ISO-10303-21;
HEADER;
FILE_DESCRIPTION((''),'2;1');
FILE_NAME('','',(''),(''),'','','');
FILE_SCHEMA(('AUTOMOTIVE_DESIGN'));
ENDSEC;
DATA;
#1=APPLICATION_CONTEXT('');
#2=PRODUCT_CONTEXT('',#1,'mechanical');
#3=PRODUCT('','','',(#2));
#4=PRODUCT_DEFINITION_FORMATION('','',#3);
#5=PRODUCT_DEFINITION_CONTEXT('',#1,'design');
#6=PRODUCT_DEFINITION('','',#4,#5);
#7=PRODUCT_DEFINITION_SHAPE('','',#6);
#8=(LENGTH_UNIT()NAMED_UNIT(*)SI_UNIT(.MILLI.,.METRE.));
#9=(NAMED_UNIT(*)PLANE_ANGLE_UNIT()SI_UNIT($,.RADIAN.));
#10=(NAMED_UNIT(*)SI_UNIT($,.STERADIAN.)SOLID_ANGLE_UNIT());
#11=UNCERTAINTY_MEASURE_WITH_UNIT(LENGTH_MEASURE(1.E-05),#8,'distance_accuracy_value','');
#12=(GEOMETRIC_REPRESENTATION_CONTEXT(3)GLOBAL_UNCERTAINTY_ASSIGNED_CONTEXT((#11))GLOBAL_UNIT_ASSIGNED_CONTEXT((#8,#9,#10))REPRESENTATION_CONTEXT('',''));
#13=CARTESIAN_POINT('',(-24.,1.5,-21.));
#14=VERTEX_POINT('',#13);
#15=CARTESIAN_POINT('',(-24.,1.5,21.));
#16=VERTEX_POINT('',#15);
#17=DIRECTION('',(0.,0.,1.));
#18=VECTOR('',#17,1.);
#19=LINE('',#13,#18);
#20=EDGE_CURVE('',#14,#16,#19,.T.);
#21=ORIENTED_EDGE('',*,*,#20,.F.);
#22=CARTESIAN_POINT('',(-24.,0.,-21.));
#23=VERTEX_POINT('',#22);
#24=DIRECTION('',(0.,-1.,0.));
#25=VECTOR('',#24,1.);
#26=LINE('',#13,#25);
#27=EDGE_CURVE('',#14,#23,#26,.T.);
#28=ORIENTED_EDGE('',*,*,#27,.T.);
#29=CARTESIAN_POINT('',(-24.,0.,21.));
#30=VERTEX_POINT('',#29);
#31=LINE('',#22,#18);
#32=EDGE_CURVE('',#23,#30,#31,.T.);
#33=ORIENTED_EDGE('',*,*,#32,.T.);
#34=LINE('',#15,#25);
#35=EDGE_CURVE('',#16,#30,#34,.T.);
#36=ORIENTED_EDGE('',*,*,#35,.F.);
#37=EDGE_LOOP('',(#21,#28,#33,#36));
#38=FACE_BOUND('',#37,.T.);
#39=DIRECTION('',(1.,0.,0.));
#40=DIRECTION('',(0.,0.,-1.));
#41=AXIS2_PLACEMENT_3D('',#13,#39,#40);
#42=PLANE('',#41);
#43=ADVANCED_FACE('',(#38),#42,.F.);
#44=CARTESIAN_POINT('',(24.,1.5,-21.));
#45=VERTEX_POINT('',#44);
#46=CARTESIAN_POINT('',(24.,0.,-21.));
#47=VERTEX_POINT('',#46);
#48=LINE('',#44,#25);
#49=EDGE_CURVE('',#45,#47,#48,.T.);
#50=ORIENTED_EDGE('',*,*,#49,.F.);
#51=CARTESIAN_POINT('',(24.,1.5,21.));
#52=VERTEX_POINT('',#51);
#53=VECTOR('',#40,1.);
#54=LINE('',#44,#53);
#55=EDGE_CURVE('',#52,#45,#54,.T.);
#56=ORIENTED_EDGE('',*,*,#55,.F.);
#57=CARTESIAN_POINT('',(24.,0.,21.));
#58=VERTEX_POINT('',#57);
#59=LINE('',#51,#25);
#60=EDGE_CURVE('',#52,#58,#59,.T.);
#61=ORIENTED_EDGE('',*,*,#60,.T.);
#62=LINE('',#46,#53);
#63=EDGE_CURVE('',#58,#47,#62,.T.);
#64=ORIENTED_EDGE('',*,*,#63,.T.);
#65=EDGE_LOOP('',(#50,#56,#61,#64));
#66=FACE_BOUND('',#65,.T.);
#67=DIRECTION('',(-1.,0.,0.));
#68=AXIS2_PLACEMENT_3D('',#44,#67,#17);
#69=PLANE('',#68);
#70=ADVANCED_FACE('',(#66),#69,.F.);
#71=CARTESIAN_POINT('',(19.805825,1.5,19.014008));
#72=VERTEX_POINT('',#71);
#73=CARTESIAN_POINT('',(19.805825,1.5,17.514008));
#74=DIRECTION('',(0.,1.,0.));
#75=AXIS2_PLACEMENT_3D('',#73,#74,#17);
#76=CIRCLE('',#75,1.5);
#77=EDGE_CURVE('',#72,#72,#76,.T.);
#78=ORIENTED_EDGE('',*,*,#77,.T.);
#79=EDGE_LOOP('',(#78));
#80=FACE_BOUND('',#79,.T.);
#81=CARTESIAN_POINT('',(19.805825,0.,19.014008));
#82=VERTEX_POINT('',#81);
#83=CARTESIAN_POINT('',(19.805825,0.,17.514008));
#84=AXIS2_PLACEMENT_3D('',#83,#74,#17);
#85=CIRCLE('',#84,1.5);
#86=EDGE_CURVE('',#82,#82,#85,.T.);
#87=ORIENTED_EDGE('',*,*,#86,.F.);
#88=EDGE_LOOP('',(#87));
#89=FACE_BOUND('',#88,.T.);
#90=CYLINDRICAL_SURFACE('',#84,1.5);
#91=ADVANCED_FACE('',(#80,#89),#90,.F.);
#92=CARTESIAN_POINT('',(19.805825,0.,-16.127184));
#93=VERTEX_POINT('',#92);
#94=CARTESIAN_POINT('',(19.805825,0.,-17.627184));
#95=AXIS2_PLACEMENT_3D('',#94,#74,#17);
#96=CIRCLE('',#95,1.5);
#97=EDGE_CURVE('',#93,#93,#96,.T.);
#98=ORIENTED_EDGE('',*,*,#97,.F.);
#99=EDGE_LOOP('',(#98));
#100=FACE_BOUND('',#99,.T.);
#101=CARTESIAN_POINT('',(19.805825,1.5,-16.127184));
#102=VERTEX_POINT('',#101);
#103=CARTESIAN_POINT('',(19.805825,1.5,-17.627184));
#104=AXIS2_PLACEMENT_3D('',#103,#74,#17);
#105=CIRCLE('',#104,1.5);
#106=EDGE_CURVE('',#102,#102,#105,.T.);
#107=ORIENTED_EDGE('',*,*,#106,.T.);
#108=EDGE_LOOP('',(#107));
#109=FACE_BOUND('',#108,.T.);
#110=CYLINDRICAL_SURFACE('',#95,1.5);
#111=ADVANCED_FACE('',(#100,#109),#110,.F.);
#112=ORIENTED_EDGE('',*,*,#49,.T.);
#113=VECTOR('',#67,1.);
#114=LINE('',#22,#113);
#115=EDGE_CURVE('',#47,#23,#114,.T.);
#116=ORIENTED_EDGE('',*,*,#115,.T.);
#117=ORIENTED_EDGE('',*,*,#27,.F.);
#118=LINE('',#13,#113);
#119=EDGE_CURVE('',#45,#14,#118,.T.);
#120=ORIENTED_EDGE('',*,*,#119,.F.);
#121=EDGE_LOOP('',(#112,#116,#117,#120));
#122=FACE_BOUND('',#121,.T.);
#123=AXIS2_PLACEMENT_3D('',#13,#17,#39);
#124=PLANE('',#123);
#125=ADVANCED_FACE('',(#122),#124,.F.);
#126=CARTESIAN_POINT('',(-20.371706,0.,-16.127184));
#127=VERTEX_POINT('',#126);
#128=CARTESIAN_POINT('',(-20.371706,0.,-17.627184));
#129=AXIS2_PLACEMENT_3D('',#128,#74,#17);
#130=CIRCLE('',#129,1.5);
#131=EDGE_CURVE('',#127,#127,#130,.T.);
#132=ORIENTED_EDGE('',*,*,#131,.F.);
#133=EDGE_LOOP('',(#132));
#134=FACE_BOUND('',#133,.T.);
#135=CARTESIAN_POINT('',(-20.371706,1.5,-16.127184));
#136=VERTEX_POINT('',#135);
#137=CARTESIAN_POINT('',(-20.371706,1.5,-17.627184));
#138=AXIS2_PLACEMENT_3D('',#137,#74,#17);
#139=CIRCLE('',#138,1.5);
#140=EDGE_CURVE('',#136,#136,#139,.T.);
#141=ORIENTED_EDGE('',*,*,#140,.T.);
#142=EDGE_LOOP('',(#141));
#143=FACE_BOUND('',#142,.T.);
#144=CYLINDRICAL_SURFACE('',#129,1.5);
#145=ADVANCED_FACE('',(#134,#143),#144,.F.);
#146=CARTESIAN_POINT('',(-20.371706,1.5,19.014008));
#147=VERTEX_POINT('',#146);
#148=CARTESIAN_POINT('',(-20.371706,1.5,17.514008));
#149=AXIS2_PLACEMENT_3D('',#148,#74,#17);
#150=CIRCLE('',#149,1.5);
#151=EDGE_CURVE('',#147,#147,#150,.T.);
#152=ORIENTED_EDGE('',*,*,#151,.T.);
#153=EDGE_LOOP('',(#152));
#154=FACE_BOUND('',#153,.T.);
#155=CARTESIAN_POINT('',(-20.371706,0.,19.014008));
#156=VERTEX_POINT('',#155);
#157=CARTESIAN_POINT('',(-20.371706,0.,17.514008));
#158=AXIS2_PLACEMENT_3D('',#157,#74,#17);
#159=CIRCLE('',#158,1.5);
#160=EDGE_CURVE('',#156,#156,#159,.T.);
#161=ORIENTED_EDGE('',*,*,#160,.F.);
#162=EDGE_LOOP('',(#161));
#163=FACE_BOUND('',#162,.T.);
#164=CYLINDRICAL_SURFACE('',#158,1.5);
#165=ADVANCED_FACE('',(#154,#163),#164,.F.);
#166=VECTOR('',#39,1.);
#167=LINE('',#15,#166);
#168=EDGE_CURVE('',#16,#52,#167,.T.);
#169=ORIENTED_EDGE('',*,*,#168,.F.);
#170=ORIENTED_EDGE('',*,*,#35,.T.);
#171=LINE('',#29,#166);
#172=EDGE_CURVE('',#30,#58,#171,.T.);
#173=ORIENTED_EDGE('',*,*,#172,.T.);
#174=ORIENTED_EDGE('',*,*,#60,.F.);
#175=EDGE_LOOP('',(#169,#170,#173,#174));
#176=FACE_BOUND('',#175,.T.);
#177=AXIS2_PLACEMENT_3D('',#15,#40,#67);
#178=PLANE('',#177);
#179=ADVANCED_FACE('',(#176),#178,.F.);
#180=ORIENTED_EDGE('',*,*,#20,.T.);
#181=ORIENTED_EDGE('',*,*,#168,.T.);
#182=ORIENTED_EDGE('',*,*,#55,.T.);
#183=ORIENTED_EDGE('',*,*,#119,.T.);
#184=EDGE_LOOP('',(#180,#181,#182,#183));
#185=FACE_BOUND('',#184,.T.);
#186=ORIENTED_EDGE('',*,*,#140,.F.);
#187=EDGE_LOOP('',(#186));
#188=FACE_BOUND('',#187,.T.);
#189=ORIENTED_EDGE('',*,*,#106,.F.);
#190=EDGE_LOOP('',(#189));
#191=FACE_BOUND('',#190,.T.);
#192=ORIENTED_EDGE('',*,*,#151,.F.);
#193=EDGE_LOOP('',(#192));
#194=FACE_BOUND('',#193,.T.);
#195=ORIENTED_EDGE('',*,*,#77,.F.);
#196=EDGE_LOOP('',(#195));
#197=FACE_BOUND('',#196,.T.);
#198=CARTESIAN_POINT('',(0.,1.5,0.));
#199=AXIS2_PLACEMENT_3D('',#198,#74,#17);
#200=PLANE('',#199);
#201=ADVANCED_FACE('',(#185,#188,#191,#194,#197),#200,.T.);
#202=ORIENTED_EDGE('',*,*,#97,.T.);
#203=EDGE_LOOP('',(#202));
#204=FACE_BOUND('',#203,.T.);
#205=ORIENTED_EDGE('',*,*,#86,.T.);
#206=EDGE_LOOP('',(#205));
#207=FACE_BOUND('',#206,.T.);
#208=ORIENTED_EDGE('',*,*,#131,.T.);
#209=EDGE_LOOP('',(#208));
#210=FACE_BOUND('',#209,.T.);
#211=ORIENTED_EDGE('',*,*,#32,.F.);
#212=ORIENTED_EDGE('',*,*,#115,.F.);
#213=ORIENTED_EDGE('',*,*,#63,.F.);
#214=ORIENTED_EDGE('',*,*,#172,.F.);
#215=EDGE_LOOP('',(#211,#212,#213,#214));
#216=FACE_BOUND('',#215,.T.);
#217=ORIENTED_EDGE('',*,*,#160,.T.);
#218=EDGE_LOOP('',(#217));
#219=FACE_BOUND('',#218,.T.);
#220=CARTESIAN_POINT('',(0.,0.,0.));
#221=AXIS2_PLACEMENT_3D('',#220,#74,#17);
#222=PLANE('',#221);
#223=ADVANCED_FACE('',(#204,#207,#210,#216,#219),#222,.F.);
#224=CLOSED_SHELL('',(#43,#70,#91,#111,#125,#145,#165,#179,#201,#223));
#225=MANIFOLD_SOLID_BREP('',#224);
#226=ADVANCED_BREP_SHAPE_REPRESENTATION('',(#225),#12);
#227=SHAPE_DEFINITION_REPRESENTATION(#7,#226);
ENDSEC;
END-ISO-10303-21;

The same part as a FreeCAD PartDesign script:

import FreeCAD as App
import Part
import Sketcher

V = App.Vector

doc = App.newDocument("Part")
params = doc.addObject("Spreadsheet::Sheet", "Params")
for row, (alias, value) in enumerate([
    ("sketch1_width", "48 mm"),
    ("sketch1_height", "42 mm"),
    ("pad1_length", "1.5 mm"),
    ("sketch2_diameter", "3 mm"),
], start=1):
    params.set(f"A{row}", alias)
    params.set(f"B{row}", "=" + value)
    params.setAlias(f"B{row}", alias)

body = doc.addObject("PartDesign::Body", "Body")

sketch1 = doc.addObject("Sketcher::SketchObject", "Sketch")
body.addObject(sketch1)
sketch1.AttachmentSupport = (doc.XZ_Plane, [""])
sketch1.MapMode = "FlatFace"
sketch1.addGeometry([
    Part.LineSegment(V(-24, -21, 0), V(-24, 21, 0)),
    Part.LineSegment(V(-24, 21, 0), V(24, 21, 0)),
    Part.LineSegment(V(24, 21, 0), V(24, -21, 0)),
    Part.LineSegment(V(24, -21, 0), V(-24, -21, 0)),
], False)
sketch1.addConstraint([
    Sketcher.Constraint("Coincident", 0, 2, 1, 1),
    Sketcher.Constraint("Coincident", 1, 2, 2, 1),
    Sketcher.Constraint("Coincident", 2, 2, 3, 1),
    Sketcher.Constraint("Coincident", 3, 2, 0, 1),
    Sketcher.Constraint("Vertical", 0),
    Sketcher.Constraint("Horizontal", 1),
    Sketcher.Constraint("Vertical", 2),
    Sketcher.Constraint("Horizontal", 3),
    Sketcher.Constraint("Symmetric", 0, 2, 2, 2, -1, 1),
    Sketcher.Constraint("DistanceX", 1, 1, 1, 2, 48.0),
    Sketcher.Constraint("DistanceY", 0, 1, 0, 2, 42.0),
])
sketch1.setExpression("Constraints[9]", "Params.sketch1_width")
sketch1.setExpression("Constraints[10]", "Params.sketch1_height")
pad1 = doc.addObject("PartDesign::Pad", "Pad")
body.addObject(pad1)
pad1.Profile = sketch1
pad1.setExpression("Length", "Params.pad1_length")
pad1.Reversed = True

sketch2 = doc.addObject("Sketcher::SketchObject", "Sketch001")
body.addObject(sketch2)
sketch2.AttachmentSupport = (doc.XZ_Plane, [""])
sketch2.MapMode = "FlatFace"
sketch2.AttachmentOffset = App.Placement(V(0, 0, -1.5), App.Rotation())
sketch2.addGeometry([
    Part.Circle(V(-20.4, -17.6, 0), V(0, 0, 1), 1.5),
    Part.Circle(V(19.8, -17.6, 0), V(0, 0, 1), 1.5),
    Part.Circle(V(19.8, 17.5, 0), V(0, 0, 1), 1.5),
    Part.Circle(V(-20.4, 17.5, 0), V(0, 0, 1), 1.5),
], False)
sketch2.addConstraint([
    Sketcher.Constraint("Equal", 0, 1),
    Sketcher.Constraint("Equal", 1, 2),
    Sketcher.Constraint("Equal", 2, 3),
    Sketcher.Constraint("Horizontal", 0, 3, 1, 3),
    Sketcher.Constraint("Horizontal", 2, 3, 3, 3),
    Sketcher.Constraint("Vertical", 1, 3, 2, 3),
    Sketcher.Constraint("Vertical", 0, 3, 3, 3),
    Sketcher.Constraint("Diameter", 0, 3.0),
    Sketcher.Constraint("DistanceY", -1, 1, 2, 3, 17.514008),
    Sketcher.Constraint("DistanceX", 0, 3, 1, 3, 40.177531),
    Sketcher.Constraint("DistanceX", 0, 3, -1, 1, 20.371706),
    Sketcher.Constraint("DistanceY", 0, 3, -1, 1, 17.627184),
])
sketch2.setExpression("Constraints[7]", "Params.sketch2_diameter")
pocket1 = doc.addObject("PartDesign::Pocket", "Pocket")
body.addObject(pocket1)
pocket1.Profile = sketch2
pocket1.Type = "ThroughAll"
pocket1.Reversed = True

doc.recompute()
